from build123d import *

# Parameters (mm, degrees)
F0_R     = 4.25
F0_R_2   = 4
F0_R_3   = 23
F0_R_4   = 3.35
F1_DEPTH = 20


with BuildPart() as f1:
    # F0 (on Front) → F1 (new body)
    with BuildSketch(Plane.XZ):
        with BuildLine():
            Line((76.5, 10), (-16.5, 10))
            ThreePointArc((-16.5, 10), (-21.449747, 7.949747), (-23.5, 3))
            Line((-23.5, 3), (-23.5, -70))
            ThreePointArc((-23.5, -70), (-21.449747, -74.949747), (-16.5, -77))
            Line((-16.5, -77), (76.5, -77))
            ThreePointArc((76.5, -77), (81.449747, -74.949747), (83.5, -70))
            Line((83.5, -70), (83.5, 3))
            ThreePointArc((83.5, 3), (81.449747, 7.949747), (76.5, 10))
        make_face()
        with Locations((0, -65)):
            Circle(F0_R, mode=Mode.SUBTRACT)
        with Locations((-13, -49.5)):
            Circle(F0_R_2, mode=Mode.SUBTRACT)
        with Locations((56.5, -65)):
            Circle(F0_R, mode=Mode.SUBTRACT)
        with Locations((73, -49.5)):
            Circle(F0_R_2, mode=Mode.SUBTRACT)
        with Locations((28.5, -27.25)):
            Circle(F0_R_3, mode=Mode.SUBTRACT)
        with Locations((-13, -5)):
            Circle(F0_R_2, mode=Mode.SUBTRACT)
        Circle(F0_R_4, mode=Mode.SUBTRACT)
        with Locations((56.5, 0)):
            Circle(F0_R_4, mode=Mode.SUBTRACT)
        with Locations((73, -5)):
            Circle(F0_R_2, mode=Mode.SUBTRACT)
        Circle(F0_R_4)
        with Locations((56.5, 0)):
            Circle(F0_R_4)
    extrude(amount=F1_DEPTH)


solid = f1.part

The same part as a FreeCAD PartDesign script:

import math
import FreeCAD as App
import Part
import Sketcher

V = App.Vector

doc = App.newDocument("Part")
body = doc.addObject("PartDesign::Body", "Body")

# Sketch on XZ plane
sketch1 = body.newObject("Sketcher::SketchObject", "Sketch")
sketch1.AttachmentSupport = (doc.getObject("XZ_Plane"), [""])
sketch1.MapMode = "FlatFace"
sketch1.addGeometry([
    Part.LineSegment(V(76.5, 10, 0), V(-16.5, 10, 0)),  # 0
    Part.ArcOfCircle(Part.Circle(V(-16.499998, 2.999998, 0), V(0, 0, 1), 7.000002), math.radians(90.000013), math.radians(179.999987)),  # 1
    Part.LineSegment(V(-23.5, 3, 0), V(-23.5, -70, 0)),  # 2
    Part.ArcOfCircle(Part.Circle(V(-16.499998, -69.999998, 0), V(0, 0, 1), 7.000002), math.radians(-179.999987), math.radians(-90.000013)),  # 3
    Part.LineSegment(V(-16.5, -77, 0), V(76.5, -77, 0)),  # 4
    Part.ArcOfCircle(Part.Circle(V(76.499998, -69.999998, 0), V(0, 0, 1), 7.000002), math.radians(-89.999987), math.radians(-0.000013)),  # 5
    Part.LineSegment(V(83.5, -70, 0), V(83.5, 3, 0)),  # 6
    Part.ArcOfCircle(Part.Circle(V(76.499998, 2.999998, 0), V(0, 0, 1), 7.000002), math.radians(0.000013), math.radians(89.999987)),  # 7
    Part.Circle(V(0, -65, 0), V(0, 0, 1), 4.25),  # 8
    Part.Circle(V(-13, -49.5, 0), V(0, 0, 1), 4),  # 9
    Part.Circle(V(56.5, -65, 0), V(0, 0, 1), 4.25),  # 10
    Part.Circle(V(73, -49.5, 0), V(0, 0, 1), 4),  # 11
    Part.Circle(V(28.5, -27.25, 0), V(0, 0, 1), 23),  # 12
    Part.Circle(V(-13, -5, 0), V(0, 0, 1), 4),  # 13
    Part.Circle(V(73, -5, 0), V(0, 0, 1), 4),  # 14
], False)
sketch1.addConstraint([
    Sketcher.Constraint("Tangent", 0, 2, 1, 1),
    Sketcher.Constraint("Tangent", 1, 2, 2, 1),
    Sketcher.Constraint("Tangent", 2, 2, 3, 1),
    Sketcher.Constraint("Tangent", 3, 2, 4, 1),
    Sketcher.Constraint("Tangent", 4, 2, 5, 1),
    Sketcher.Constraint("Tangent", 5, 2, 6, 1),
    Sketcher.Constraint("Tangent", 6, 2, 7, 1),
    Sketcher.Constraint("Tangent", 7, 2, 0, 1),
    Sketcher.Constraint("Horizontal", 0),
    Sketcher.Constraint("Vertical", 2),
    Sketcher.Constraint("Horizontal", 4),
    Sketcher.Constraint("Vertical", 6),
    Sketcher.Constraint("Equal", 1, 3),
    Sketcher.Constraint("Equal", 3, 5),
    Sketcher.Constraint("Equal", 5, 7),
    Sketcher.Constraint("Equal", 8, 10),
    Sketcher.Constraint("Equal", 9, 11),
    Sketcher.Constraint("Equal", 11, 13),
    Sketcher.Constraint("Equal", 13, 14),
    Sketcher.Constraint("PointOnObject", 8, 3, -2),
    Sketcher.Constraint("Horizontal", 8, 3, 10, 3),
    Sketcher.Constraint("Horizontal", 9, 3, 11, 3),
    Sketcher.Constraint("Horizontal", 13, 3, 14, 3),
    Sketcher.Constraint("Vertical", 9, 3, 13, 3),
    Sketcher.Constraint("Vertical", 11, 3, 14, 3),
    Sketcher.Constraint("Diameter", 9, 8.0),
    Sketcher.Constraint("Diameter", 12, 46.0),
    Sketcher.Constraint("Radius", 1, 7.000002),
    Sketcher.Constraint("Diameter", 8, 8.5),
    Sketcher.Constraint("DistanceX", 0, 2, 0, 1, 93.0),
    Sketcher.Constraint("DistanceY", 2, 2, 2, 1, 73.0),
    Sketcher.Constraint("DistanceY", -1, 1, 1, 3, 2.999998),
    Sketcher.Constraint("DistanceY", 8, 3, -1, 1, 65.0),
    Sketcher.Constraint("DistanceX", 9, 3, -1, 1, 13.0),
    Sketcher.Constraint("DistanceX", -1, 1, 11, 3, 73.0),
    Sketcher.Constraint("DistanceY", 13, 3, -1, 1, 5.0),
    Sketcher.Constraint("DistanceX", 10, 3, 5, 3, 19.999998),
    Sketcher.Constraint("DistanceX", 12, 3, 10, 3, 28.0),
    Sketcher.Constraint("DistanceX", 1, 3, -1, 1, 16.499998),
    Sketcher.Constraint("DistanceY", 9, 3, -1, 1, 49.5),
    Sketcher.Constraint("DistanceY", 12, 3, -1, 1, 27.25),
])
pad1 = body.newObject("PartDesign::Pad", "Pad")
pad1.Profile = sketch1
pad1.Length = 20

doc.recompute()
